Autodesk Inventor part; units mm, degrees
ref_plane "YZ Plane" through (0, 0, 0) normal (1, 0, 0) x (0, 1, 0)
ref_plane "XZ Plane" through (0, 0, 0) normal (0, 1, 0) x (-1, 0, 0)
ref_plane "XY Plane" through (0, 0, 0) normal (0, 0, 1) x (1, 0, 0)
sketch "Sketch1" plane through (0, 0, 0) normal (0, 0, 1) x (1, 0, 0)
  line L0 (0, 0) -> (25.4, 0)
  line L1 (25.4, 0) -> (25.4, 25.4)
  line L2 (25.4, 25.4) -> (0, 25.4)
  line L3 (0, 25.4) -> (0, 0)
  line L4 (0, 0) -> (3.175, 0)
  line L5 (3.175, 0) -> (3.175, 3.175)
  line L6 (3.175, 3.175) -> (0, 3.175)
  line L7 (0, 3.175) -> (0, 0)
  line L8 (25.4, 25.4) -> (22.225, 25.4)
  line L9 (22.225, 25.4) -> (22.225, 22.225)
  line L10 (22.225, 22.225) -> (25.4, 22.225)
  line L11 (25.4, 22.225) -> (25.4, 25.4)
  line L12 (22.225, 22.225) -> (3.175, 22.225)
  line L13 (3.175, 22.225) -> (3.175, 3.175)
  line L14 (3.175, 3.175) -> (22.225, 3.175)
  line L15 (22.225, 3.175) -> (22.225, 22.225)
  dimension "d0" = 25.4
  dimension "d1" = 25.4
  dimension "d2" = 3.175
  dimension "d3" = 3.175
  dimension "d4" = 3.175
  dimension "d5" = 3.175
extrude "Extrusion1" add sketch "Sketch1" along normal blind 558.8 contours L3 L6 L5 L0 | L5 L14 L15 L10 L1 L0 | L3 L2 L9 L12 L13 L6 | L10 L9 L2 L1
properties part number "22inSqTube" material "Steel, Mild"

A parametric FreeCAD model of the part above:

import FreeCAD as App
import Part
import Sketcher
Q = App.Units.Quantity

doc = App.newDocument("Part")
body = doc.addObject("PartDesign::Body", "Body")

# Sketch on XY plane
sketch1 = body.newObject("Sketcher::SketchObject", "Sketch")
sketch1.AttachmentSupport = (doc.getObject("XY_Plane"), [""])
sketch1.MapMode = "FlatFace"
sketch1.addGeometry([
    Part.LineSegment(App.Vector(0, 0, 0), App.Vector(25.4, 0, 0)),  # 0
    Part.LineSegment(App.Vector(25.4, 0, 0), App.Vector(25.4, 25.4, 0)),  # 1
    Part.LineSegment(App.Vector(25.4, 25.4, 0), App.Vector(0, 25.4, 0)),  # 2
    Part.LineSegment(App.Vector(0, 25.4, 0), App.Vector(0, 0, 0)),  # 3
    Part.LineSegment(App.Vector(3.175, 22.225, 0), App.Vector(22.225, 22.225, 0)),  # 4
    Part.LineSegment(App.Vector(22.225, 22.225, 0), App.Vector(22.225, 3.175, 0)),  # 5
    Part.LineSegment(App.Vector(22.225, 3.175, 0), App.Vector(3.175, 3.175, 0)),  # 6
    Part.LineSegment(App.Vector(3.175, 3.175, 0), App.Vector(3.175, 22.225, 0)),  # 7
], False)
sketch1.addConstraint([
    Sketcher.Constraint("Coincident", 0, 2, 1, 1),
    Sketcher.Constraint("Coincident", 1, 2, 2, 1),
    Sketcher.Constraint("Coincident", 2, 2, 3, 1),
    Sketcher.Constraint("Coincident", 3, 2, 0, 1),
    Sketcher.Constraint("Coincident", 4, 2, 5, 1),
    Sketcher.Constraint("Coincident", 5, 2, 6, 1),
    Sketcher.Constraint("Coincident", 6, 2, 7, 1),
    Sketcher.Constraint("Coincident", 7, 2, 4, 1),
    Sketcher.Constraint("Horizontal", 0),
    Sketcher.Constraint("Vertical", 1),
    Sketcher.Constraint("Horizontal", 2),
    Sketcher.Constraint("Vertical", 3),
    Sketcher.Constraint("Horizontal", 4),
    Sketcher.Constraint("Vertical", 5),
    Sketcher.Constraint("Horizontal", 6),
    Sketcher.Constraint("Vertical", 7),
    Sketcher.Constraint("Coincident", 3, 2, -1, 1),
    Sketcher.Constraint("Equal", 2, 1),
    Sketcher.Constraint("Equal", 6, 5),
    Sketcher.Constraint("DistanceX", 0, 1, 0, 2, Q("1 in")),
    Sketcher.Constraint("DistanceY", -1, 1, 5, 2, Q("0.125 in")),
    Sketcher.Constraint("DistanceX", -1, 1, 6, 2, Q("0.125 in")),
    Sketcher.Constraint("DistanceX", 4, 2, 1, 2, Q("0.125 in")),
])
pad1 = body.newObject("PartDesign::Pad", "Pad")
pad1.Profile = sketch1
pad1.Length = Q("22 in")

doc.recompute()
